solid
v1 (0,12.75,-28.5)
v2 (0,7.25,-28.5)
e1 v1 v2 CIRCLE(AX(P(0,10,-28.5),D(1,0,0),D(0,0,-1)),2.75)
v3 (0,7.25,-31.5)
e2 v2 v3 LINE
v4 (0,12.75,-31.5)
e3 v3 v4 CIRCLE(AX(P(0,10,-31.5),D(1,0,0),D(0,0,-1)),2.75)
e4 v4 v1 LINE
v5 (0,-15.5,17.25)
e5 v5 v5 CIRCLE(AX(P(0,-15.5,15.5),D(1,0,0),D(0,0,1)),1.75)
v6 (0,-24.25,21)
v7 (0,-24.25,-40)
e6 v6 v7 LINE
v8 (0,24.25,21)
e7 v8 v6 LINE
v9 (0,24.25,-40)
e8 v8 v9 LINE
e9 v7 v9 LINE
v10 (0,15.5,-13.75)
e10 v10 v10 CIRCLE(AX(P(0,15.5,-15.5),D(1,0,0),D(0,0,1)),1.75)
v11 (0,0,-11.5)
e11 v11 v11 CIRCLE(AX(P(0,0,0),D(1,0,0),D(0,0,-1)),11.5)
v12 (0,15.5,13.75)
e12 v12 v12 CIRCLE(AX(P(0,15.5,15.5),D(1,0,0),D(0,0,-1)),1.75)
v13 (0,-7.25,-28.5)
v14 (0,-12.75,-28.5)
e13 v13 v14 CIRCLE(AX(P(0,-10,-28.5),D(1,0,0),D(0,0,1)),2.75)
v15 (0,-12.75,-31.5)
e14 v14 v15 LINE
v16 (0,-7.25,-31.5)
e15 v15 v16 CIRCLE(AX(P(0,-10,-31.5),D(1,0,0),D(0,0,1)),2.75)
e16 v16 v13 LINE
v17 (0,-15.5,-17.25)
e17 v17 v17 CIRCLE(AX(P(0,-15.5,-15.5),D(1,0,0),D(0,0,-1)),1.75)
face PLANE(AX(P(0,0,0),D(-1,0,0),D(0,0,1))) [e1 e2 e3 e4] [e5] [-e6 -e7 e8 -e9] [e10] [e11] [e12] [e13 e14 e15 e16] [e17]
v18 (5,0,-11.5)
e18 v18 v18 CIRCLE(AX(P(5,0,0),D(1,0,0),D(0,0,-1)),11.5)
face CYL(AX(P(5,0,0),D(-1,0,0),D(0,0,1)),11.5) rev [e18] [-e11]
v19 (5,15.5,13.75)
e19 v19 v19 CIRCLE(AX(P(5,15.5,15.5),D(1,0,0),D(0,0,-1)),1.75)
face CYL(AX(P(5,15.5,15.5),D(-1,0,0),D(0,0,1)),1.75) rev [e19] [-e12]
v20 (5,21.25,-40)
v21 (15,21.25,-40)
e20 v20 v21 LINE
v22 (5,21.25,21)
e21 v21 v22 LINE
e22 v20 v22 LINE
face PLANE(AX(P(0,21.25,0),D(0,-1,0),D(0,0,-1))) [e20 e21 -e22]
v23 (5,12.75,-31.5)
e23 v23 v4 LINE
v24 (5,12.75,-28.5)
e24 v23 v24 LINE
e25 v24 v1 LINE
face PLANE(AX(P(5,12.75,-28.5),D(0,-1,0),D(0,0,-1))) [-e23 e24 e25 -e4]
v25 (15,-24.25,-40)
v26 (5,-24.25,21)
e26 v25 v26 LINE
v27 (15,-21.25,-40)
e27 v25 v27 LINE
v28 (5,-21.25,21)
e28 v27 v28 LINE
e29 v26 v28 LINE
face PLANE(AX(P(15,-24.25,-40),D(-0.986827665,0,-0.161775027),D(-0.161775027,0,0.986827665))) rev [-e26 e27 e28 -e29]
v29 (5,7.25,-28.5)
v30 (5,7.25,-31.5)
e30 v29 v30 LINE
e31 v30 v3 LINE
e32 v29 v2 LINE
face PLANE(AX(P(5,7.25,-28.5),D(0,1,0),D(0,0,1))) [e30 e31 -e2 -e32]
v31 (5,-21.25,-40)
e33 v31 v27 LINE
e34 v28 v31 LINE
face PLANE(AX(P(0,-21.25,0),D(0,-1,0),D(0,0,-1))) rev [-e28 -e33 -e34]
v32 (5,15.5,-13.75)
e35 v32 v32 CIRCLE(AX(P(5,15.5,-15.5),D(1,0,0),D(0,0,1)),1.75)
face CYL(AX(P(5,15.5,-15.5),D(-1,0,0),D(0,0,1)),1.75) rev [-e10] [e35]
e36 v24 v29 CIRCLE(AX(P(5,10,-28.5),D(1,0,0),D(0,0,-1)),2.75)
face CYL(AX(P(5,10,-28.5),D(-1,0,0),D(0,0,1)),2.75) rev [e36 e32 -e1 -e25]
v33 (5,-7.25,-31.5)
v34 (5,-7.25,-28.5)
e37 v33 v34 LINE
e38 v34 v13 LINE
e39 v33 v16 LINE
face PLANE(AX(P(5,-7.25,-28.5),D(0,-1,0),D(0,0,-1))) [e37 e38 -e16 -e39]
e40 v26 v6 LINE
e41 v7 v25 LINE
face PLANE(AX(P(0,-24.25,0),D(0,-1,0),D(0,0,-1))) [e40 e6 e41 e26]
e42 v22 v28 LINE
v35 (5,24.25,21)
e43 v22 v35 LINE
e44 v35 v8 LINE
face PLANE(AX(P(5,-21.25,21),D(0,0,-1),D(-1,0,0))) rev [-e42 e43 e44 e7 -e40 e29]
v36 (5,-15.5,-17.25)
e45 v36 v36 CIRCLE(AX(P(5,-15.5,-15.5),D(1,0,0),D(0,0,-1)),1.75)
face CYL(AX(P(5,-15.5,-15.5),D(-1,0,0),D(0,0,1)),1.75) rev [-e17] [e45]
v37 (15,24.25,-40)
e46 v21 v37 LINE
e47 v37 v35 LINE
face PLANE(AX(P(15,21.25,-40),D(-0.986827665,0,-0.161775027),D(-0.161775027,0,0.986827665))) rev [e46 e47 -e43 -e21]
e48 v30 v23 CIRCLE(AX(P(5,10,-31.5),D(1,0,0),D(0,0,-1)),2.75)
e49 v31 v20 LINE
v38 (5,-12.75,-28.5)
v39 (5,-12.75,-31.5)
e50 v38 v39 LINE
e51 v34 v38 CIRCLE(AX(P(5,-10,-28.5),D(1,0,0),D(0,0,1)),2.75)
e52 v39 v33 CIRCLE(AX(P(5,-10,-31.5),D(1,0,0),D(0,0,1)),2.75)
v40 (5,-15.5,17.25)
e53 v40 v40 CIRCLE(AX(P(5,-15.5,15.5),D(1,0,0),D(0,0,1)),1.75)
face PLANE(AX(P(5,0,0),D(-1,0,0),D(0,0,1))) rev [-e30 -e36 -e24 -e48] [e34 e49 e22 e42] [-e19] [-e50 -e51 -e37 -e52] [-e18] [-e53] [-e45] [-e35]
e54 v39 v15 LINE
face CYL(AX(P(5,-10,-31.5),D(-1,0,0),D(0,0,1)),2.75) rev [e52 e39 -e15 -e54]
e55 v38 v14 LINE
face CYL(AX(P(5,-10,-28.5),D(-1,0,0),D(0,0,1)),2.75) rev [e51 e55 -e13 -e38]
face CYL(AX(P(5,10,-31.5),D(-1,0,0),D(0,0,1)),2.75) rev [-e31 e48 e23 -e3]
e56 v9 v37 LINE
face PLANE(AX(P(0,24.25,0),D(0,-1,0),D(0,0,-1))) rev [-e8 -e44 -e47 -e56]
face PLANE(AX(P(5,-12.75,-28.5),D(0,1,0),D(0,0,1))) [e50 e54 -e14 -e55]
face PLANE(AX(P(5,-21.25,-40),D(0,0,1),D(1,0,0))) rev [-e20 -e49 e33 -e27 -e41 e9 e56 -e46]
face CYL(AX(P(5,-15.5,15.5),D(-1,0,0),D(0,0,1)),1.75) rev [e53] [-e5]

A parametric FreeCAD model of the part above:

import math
import FreeCAD as App
import Part
import Sketcher
from FreeCAD import Vector


def add_polygon(sketch, points):
    """Adds a closed chain of lines whose ends are joined by coincident constraints."""
    first, n = sketch.GeometryCount, len(points)
    for a, b in zip(points, points[1:] + points[:1]):
        sketch.addGeometry(Part.LineSegment(App.Vector(*a, 0), App.Vector(*b, 0)), False)
    for i in range(n):
        sketch.addConstraint(Sketcher.Constraint("Coincident", first + i, 2, first + (i + 1) % n, 1))

doc = App.newDocument("Part")
body = doc.addObject("PartDesign::Body", "Body")

sketch1 = doc.addObject("Sketcher::SketchObject", "Sketch")
body.addObject(sketch1)
sketch1.AttachmentSupport = (doc.YZ_Plane, [""])
sketch1.MapMode = "FlatFace"
add_polygon(sketch1, [(21.2, 21), (-21.2, 21), (-21.2, -40), (21.2, -40)])
sketch1.addGeometry(Part.Circle(Vector(-15.5, 15.5, 0), Vector(0, 0, 1), 1.8), False)
sketch1.addGeometry(Part.Circle(Vector(-15.5, -15.5, 0), Vector(0, 0, 1), 1.8), False)
sketch1.addGeometry(Part.LineSegment(Vector(-12.8, -31.5, 0), Vector(-12.8, -28.5, 0)), False)
sketch1.addGeometry(Part.ArcOfCircle(Part.Circle(Vector(-10, -28.5, 0), Vector(0, 0, 1), 2.8), math.radians(0), math.radians(180)), False)
sketch1.addGeometry(Part.LineSegment(Vector(-7.2, -28.5, 0), Vector(-7.2, -31.5, 0)), False)
sketch1.addGeometry(Part.ArcOfCircle(Part.Circle(Vector(-10, -31.5, 0), Vector(0, 0, 1), 2.8), math.radians(180), math.radians(360)), False)
sketch1.addGeometry(Part.Circle(Vector(0, 0, 0), Vector(0, 0, 1), 11.5), False)
sketch1.addGeometry(Part.Circle(Vector(15.5, 15.5, 0), Vector(0, 0, 1), 1.8), False)
sketch1.addGeometry(Part.Circle(Vector(15.5, -15.5, 0), Vector(0, 0, 1), 1.8), False)
sketch1.addGeometry(Part.ArcOfCircle(Part.Circle(Vector(10, -28.5, 0), Vector(0, 0, 1), 2.8), math.radians(0), math.radians(180)), False)
sketch1.addGeometry(Part.LineSegment(Vector(12.8, -28.5, 0), Vector(12.8, -31.5, 0)), False)
sketch1.addGeometry(Part.ArcOfCircle(Part.Circle(Vector(10, -31.5, 0), Vector(0, 0, 1), 2.8), math.radians(180), math.radians(360)), False)
sketch1.addGeometry(Part.LineSegment(Vector(7.2, -31.5, 0), Vector(7.2, -28.5, 0)), False)
sketch1.addConstraint(Sketcher.Constraint("Tangent", 6, 2, 7, 2))
sketch1.addConstraint(Sketcher.Constraint("Tangent", 7, 1, 8, 1))
sketch1.addConstraint(Sketcher.Constraint("Tangent", 8, 2, 9, 2))
sketch1.addConstraint(Sketcher.Constraint("Tangent", 9, 1, 6, 1))
sketch1.addConstraint(Sketcher.Constraint("Tangent", 13, 1, 14, 1))
sketch1.addConstraint(Sketcher.Constraint("Tangent", 14, 2, 15, 2))
sketch1.addConstraint(Sketcher.Constraint("Tangent", 15, 1, 16, 1))
sketch1.addConstraint(Sketcher.Constraint("Tangent", 16, 2, 13, 2))
sketch1.addConstraint(Sketcher.Constraint("Horizontal", 0))
sketch1.addConstraint(Sketcher.Constraint("Vertical", 1))
sketch1.addConstraint(Sketcher.Constraint("Horizontal", 2))
sketch1.addConstraint(Sketcher.Constraint("Vertical", 3))
sketch1.addConstraint(Sketcher.Constraint("Vertical", 6))
sketch1.addConstraint(Sketcher.Constraint("Vertical", 8))
sketch1.addConstraint(Sketcher.Constraint("Vertical", 14))
sketch1.addConstraint(Sketcher.Constraint("Vertical", 16))
sketch1.addConstraint(Sketcher.Constraint("Coincident", 10, 3, -1, 1))
sketch1.addConstraint(Sketcher.Constraint("Equal", 4, 5))
sketch1.addConstraint(Sketcher.Constraint("Equal", 5, 11))
sketch1.addConstraint(Sketcher.Constraint("Equal", 11, 12))
sketch1.addConstraint(Sketcher.Constraint("Equal", 9, 13))
sketch1.addConstraint(Sketcher.Constraint("Symmetric", 5, 3, 11, 3, -1, 1))
sketch1.addConstraint(Sketcher.Constraint("Symmetric", 4, 3, 12, 3, -1, 1))
sketch1.addConstraint(Sketcher.Constraint("Symmetric", 4, 3, 11, 3, -2))
sketch1.addConstraint(Sketcher.Constraint("Symmetric", 7, 3, 13, 3, -2))
sketch1.addConstraint(Sketcher.Constraint("Horizontal", 9, 3, 15, 3))
sketch1.addConstraint(Sketcher.Constraint("Diameter", 10, 23.0))
sketch1.addConstraint(Sketcher.Constraint("Diameter", 4, 3.5))
sketch1.addConstraint(Sketcher.Constraint("DistanceY", 1, 2, 1, 1, 61.0))
sketch1.addConstraint(Sketcher.Constraint("DistanceY", 6, 1, 6, 2, 3.0))
sketch1.addConstraint(Sketcher.Constraint("Radius", 7, 2.75))
sketch1.addConstraint(Sketcher.Constraint("DistanceX", 0, 2, 0, 1, 42.5))
sketch1.addConstraint(Sketcher.Constraint("DistanceX", 7, 3, -1, 1, 10.0))
sketch1.addConstraint(Sketcher.Constraint("DistanceY", -1, 1, 0, 2, 21.0))
sketch1.addConstraint(Sketcher.Constraint("DistanceY", 5, 3, 4, 3, 31.0))
sketch1.addConstraint(Sketcher.Constraint("DistanceY", 7, 3, 5, 3, 13.0))
sketch1.addConstraint(Sketcher.Constraint("DistanceX", 4, 3, 11, 3, 31.0))
sketch1.addConstraint(Sketcher.Constraint("DistanceX", 1, 2, 8, 2, 14.0))
pad1 = doc.addObject("PartDesign::Pad", "Pad")
body.addObject(pad1)
pad1.Profile = sketch1
pad1.Length = 5

sketch2 = doc.addObject("Sketcher::SketchObject", "Sketch001")
body.addObject(sketch2)
sketch2.AttachmentSupport = (doc.XZ_Plane, [""])
sketch2.MapMode = "FlatFace"
sketch2.AttachmentOffset = App.Placement(Vector(0, 0, 21.25), App.Rotation())
add_polygon(sketch2, [(0, -40), (15, -40), (5, 21), (0, 21)])
sketch2.addConstraint(Sketcher.Constraint("Horizontal", 0))
sketch2.addConstraint(Sketcher.Constraint("Horizontal", 2))
sketch2.addConstraint(Sketcher.Constraint("Vertical", 3))
sketch2.addConstraint(Sketcher.Constraint("PointOnObject", 2, 2, -2))
sketch2.addConstraint(Sketcher.Constraint("DistanceX", 0, 1, 0, 2, 15.0))
sketch2.addConstraint(Sketcher.Constraint("DistanceX", 2, 2, 2, 1, 5.0))
sketch2.addConstraint(Sketcher.Constraint("DistanceY", 3, 2, 3, 1, 61.0))
sketch2.addConstraint(Sketcher.Constraint("DistanceY", 0, 2, -1, 1, 40.0))
pad2 = doc.addObject("PartDesign::Pad", "Pad001")
body.addObject(pad2)
pad2.Profile = sketch2
pad2.Length = 3
doc.recompute()

linearpattern = doc.addObject("PartDesign::LinearPattern", "LinearPattern")
body.addObject(linearpattern)
linearpattern.Originals = [pad2]
linearpattern.Direction = (doc.Y_Axis, [""])
linearpattern.Mode = "offset"
linearpattern.Offset = 45.5
linearpattern.Occurrences = 2
body.Tip = linearpattern

doc.recompute()
